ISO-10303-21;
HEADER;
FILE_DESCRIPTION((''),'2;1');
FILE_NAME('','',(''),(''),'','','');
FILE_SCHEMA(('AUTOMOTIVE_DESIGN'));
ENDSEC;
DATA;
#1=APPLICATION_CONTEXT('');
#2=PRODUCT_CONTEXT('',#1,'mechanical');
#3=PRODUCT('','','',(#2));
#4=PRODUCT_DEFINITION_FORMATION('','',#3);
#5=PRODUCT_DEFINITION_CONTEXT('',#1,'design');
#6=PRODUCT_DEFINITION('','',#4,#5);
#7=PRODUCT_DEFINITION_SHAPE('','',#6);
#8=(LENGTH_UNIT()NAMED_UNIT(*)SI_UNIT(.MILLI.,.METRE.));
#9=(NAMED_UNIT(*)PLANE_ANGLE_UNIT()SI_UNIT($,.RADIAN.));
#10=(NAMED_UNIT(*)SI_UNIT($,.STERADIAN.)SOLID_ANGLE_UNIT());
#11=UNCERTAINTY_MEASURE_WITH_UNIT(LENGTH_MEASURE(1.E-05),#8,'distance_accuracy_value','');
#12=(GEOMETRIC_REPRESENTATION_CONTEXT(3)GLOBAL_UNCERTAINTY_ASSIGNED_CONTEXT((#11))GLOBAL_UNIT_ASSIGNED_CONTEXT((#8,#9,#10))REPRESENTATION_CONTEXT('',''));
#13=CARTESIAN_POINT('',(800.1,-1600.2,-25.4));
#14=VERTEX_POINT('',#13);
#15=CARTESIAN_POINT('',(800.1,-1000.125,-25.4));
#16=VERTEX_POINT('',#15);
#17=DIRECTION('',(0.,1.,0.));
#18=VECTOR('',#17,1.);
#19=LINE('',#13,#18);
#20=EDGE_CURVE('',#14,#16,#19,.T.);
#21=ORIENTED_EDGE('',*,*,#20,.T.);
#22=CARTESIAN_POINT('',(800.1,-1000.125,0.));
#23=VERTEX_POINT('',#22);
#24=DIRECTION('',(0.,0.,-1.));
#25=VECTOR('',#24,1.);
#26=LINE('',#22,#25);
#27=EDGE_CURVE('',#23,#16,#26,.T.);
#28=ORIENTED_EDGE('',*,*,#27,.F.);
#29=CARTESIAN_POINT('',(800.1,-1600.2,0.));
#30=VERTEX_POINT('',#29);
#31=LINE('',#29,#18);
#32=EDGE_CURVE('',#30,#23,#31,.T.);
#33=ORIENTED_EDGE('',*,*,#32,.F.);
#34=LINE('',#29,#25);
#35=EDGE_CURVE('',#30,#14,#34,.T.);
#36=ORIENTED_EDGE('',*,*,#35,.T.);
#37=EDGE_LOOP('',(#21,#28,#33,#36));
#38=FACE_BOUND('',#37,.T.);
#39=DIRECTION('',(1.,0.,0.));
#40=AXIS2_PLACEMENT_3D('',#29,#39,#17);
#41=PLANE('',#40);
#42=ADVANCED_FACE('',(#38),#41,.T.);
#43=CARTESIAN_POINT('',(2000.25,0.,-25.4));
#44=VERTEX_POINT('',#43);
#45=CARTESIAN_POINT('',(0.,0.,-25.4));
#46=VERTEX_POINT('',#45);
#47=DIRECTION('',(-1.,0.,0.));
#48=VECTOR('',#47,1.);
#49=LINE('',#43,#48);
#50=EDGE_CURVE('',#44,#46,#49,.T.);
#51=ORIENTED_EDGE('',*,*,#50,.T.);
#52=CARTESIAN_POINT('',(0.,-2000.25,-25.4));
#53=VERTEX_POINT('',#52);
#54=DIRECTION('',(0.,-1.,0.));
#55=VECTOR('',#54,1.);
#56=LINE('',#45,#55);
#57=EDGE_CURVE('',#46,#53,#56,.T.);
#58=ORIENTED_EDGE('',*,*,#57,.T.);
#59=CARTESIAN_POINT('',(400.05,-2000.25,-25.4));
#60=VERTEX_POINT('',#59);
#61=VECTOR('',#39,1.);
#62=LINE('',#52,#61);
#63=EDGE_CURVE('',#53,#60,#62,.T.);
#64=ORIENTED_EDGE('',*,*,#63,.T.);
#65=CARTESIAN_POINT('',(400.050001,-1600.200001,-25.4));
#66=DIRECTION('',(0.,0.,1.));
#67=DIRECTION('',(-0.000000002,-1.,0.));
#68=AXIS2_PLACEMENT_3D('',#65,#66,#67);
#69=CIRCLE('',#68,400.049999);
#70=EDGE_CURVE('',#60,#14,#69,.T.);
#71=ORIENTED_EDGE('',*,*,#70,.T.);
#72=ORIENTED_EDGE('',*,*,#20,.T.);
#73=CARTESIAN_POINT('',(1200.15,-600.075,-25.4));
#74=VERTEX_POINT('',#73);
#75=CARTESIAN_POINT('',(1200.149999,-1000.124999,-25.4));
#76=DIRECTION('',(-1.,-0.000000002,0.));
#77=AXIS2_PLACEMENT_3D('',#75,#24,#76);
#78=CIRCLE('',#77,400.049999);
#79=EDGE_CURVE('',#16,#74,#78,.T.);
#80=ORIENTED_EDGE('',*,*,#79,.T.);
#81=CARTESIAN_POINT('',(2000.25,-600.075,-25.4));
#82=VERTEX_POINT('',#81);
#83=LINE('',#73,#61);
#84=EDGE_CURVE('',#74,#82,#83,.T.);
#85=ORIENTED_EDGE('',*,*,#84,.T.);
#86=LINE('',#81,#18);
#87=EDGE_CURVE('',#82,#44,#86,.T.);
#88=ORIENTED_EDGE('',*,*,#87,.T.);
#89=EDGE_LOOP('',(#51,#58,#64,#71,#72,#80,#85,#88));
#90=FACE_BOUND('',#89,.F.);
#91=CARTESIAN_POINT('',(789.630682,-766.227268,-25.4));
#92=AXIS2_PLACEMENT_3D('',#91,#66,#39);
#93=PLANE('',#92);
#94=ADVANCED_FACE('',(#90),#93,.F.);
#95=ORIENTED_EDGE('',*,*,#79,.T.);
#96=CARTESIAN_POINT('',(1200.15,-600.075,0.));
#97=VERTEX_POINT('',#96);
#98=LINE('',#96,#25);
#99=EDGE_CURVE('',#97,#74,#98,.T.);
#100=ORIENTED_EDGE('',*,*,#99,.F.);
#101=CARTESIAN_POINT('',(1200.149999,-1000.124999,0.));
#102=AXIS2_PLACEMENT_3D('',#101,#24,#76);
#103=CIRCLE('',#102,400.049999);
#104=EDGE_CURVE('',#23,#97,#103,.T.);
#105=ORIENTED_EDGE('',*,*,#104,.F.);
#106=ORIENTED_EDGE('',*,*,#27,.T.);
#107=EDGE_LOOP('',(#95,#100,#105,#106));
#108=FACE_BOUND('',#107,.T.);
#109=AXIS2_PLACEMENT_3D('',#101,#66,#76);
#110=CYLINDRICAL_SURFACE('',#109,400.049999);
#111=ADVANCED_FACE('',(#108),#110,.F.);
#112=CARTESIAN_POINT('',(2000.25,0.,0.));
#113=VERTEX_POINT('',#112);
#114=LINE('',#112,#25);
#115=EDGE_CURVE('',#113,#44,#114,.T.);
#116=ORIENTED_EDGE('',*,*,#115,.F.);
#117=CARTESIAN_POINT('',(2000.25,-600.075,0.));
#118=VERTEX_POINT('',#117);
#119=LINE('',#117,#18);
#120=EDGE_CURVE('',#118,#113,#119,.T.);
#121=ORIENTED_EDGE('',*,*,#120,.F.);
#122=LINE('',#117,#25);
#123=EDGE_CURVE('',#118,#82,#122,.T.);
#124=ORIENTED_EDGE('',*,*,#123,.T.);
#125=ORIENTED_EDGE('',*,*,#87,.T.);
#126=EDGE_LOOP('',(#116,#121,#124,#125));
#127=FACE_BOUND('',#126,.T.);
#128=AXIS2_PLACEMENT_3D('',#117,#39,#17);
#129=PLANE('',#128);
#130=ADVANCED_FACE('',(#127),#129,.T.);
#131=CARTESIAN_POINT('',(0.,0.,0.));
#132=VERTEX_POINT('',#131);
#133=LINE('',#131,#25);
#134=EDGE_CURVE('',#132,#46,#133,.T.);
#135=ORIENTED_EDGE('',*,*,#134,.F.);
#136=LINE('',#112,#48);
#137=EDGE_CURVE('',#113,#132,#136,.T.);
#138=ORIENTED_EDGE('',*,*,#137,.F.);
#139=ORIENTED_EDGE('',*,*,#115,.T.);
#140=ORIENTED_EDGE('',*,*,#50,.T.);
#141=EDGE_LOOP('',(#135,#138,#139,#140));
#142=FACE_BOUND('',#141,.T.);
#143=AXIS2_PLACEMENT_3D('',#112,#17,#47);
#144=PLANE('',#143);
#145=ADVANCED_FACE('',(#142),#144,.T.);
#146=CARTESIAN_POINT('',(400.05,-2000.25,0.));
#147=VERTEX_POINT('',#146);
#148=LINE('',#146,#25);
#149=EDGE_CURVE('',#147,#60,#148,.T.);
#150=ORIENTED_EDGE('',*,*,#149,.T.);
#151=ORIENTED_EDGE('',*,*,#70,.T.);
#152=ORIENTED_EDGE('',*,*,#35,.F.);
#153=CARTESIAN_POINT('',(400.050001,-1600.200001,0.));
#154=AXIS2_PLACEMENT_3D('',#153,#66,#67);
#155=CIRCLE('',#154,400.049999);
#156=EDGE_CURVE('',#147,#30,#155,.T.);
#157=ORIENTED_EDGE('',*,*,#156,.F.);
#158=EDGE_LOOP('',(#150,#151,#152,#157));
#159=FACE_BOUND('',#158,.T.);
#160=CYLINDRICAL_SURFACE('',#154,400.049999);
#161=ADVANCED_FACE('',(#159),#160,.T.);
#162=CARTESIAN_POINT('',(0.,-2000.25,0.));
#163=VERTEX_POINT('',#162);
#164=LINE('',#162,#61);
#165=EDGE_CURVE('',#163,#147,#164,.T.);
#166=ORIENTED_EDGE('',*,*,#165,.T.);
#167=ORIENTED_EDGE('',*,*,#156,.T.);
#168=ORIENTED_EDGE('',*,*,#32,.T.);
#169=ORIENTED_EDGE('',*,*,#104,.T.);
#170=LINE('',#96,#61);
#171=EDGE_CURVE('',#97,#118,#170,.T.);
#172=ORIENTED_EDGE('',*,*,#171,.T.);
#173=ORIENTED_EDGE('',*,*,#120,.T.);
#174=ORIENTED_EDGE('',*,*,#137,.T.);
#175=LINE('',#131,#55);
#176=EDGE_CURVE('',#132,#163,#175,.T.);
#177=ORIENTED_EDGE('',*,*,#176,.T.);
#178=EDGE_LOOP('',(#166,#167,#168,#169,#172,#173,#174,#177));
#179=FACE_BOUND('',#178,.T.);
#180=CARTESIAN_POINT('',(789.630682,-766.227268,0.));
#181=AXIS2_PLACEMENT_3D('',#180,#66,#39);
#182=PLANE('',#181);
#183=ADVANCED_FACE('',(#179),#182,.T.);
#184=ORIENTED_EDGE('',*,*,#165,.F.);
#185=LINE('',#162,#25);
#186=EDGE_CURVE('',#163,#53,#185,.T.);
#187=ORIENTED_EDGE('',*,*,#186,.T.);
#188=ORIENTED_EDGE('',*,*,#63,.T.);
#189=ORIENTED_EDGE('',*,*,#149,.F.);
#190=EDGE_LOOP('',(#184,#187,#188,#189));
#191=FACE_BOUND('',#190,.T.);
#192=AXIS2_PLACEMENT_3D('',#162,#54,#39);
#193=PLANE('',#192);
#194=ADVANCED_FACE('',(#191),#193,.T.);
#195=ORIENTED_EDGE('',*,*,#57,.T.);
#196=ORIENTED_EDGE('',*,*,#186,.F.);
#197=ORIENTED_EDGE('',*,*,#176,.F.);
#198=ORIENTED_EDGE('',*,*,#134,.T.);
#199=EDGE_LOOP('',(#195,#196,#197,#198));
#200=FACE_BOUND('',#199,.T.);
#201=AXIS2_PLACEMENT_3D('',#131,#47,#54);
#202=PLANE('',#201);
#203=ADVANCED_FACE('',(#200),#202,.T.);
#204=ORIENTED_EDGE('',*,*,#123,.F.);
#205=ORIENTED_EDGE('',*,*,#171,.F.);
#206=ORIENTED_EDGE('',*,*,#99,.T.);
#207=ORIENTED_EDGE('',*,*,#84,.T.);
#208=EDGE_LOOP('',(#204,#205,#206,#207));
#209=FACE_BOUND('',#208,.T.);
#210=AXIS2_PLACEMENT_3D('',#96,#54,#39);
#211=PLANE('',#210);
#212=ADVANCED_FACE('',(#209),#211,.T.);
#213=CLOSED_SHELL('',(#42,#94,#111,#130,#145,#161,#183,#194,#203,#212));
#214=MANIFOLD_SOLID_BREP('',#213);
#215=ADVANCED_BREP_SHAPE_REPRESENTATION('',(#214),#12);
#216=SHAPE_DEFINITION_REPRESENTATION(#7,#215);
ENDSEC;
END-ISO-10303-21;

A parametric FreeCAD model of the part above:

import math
import FreeCAD as App
import Part
import Sketcher
from FreeCAD import Vector
Q = App.Units.Quantity

doc = App.newDocument("Part")
body = doc.addObject("PartDesign::Body", "Body")

# Sketch on XY plane
sketch1 = doc.addObject("Sketcher::SketchObject", "Sketch")
body.addObject(sketch1)
sketch1.AttachmentSupport = (doc.XY_Plane, [""])
sketch1.MapMode = "FlatFace"
sketch1.addGeometry(Part.LineSegment(Vector(2000, 0, 0), Vector(0, 0, 0)), False)
sketch1.addGeometry(Part.LineSegment(Vector(0, 0, 0), Vector(0, -2000, 0)), False)
sketch1.addGeometry(Part.LineSegment(Vector(0, -2000, 0), Vector(400, -2000, 0)), False)
sketch1.addGeometry(Part.ArcOfCircle(Part.Circle(Vector(400, -1600, 0), Vector(0, 0, 1), 400), math.radians(-90), math.radians(0)), False)
sketch1.addGeometry(Part.LineSegment(Vector(800, -1600, 0), Vector(800, -1000, 0)), False)
sketch1.addGeometry(Part.ArcOfCircle(Part.Circle(Vector(1200, -1000, 0), Vector(0, 0, 1), 400), math.radians(90), math.radians(180)), False)
sketch1.addGeometry(Part.LineSegment(Vector(1200, -600, 0), Vector(2000, -600, 0)), False)
sketch1.addGeometry(Part.LineSegment(Vector(2000, -600, 0), Vector(2000, 0, 0)), False)
sketch1.addConstraint(Sketcher.Constraint("Coincident", 0, 2, 1, 1))
sketch1.addConstraint(Sketcher.Constraint("Coincident", 1, 2, 2, 1))
sketch1.addConstraint(Sketcher.Constraint("Tangent", 2, 2, 3, 1))
sketch1.addConstraint(Sketcher.Constraint("Tangent", 3, 2, 4, 1))
sketch1.addConstraint(Sketcher.Constraint("Tangent", 4, 2, 5, 2))
sketch1.addConstraint(Sketcher.Constraint("Tangent", 5, 1, 6, 1))
sketch1.addConstraint(Sketcher.Constraint("Coincident", 6, 2, 7, 1))
sketch1.addConstraint(Sketcher.Constraint("Coincident", 7, 2, 0, 1))
sketch1.addConstraint(Sketcher.Constraint("Horizontal", 0))
sketch1.addConstraint(Sketcher.Constraint("Vertical", 1))
sketch1.addConstraint(Sketcher.Constraint("Horizontal", 2))
sketch1.addConstraint(Sketcher.Constraint("Vertical", 4))
sketch1.addConstraint(Sketcher.Constraint("Horizontal", 6))
sketch1.addConstraint(Sketcher.Constraint("Vertical", 7))
sketch1.addConstraint(Sketcher.Constraint("Coincident", 0, 2, -1, 1))
sketch1.addConstraint(Sketcher.Constraint("Equal", 3, 5))
sketch1.addConstraint(Sketcher.Constraint("Equal", 0, 1))
sketch1.addConstraint(Sketcher.Constraint("Equal", 4, 7))
sketch1.addConstraint(Sketcher.Constraint("Radius", 3, Q("15.75 in")))
sketch1.addConstraint(Sketcher.Constraint("DistanceX", 6, 1, 6, 2, Q("31.5 in")))
sketch1.addConstraint(Sketcher.Constraint("DistanceY", 3, 3, -1, 1, Q("63 in")))
pad1 = doc.addObject("PartDesign::Pad", "Pad")
body.addObject(pad1)
pad1.Profile = sketch1
pad1.Length = Q("1 in")
pad1.Reversed = True

doc.recompute()
